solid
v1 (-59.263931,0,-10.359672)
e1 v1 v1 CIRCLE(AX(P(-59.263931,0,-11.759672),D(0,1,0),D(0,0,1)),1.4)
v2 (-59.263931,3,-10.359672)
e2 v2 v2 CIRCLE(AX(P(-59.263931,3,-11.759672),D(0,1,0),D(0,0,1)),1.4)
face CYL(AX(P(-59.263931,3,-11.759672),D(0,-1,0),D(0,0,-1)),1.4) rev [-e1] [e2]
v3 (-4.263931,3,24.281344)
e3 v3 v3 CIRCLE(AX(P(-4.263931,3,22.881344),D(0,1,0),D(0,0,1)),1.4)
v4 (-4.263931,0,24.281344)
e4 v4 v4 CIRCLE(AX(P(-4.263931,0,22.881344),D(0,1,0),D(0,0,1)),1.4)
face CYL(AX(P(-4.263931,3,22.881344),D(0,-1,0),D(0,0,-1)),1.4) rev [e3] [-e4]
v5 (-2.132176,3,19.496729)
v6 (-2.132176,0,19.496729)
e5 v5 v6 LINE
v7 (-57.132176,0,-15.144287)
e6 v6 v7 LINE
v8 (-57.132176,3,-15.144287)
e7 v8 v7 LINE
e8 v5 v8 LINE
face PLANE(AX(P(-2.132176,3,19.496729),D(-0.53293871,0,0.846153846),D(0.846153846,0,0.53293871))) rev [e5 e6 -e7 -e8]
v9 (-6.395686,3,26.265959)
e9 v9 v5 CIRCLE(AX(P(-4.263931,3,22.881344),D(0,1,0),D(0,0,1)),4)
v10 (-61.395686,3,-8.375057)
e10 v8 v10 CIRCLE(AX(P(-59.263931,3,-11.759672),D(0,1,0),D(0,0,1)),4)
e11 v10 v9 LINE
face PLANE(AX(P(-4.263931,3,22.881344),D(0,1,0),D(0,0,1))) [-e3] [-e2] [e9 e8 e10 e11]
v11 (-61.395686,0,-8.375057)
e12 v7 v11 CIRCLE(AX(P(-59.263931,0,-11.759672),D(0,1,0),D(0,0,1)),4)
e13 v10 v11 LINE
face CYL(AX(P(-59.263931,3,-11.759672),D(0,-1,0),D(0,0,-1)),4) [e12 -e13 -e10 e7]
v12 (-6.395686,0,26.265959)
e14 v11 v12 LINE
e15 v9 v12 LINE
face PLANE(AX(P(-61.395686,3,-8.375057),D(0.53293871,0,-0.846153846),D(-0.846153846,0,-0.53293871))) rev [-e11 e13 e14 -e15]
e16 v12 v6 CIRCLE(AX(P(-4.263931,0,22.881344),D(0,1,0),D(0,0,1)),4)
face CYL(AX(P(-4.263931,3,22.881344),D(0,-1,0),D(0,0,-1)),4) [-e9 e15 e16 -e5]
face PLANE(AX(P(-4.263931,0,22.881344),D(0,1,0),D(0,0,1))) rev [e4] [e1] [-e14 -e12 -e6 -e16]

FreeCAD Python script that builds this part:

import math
import FreeCAD as App
import Part
import Sketcher

V = App.Vector
Q = App.Units.Quantity

doc = App.newDocument("Part")
body = doc.addObject("PartDesign::Body", "Body")

# Sketch on XZ plane
sketch1 = body.newObject("Sketcher::SketchObject", "Sketch")
sketch1.AttachmentSupport = (doc.getObject("XZ_Plane"), [""])
sketch1.MapMode = "FlatFace"
sketch1.addGeometry(Part.LineSegment(V(-2.1, 19.5, 0), V(-57.1, -15.1, 0)), False)
sketch1.addGeometry(Part.ArcOfCircle(Part.Circle(V(-59.3, -11.8, 0), V(0, 0, 1), 4), math.radians(122), math.radians(302)), False)
sketch1.addGeometry(Part.LineSegment(V(-61.4, -8.4, 0), V(-6.4, 26.3, 0)), False)
sketch1.addGeometry(Part.ArcOfCircle(Part.Circle(V(-4.3, 22.9, 0), V(0, 0, 1), 4), math.radians(-58), math.radians(122)), False)
sketch1.addGeometry(Part.Circle(V(-4.3, 22.9, 0), V(0, 0, 1), 1.4), False)
sketch1.addGeometry(Part.Circle(V(-59.3, -11.8, 0), V(0, 0, 1), 1.4), False)
sketch1.addConstraint(Sketcher.Constraint("Tangent", 0, 2, 1, 2))
sketch1.addConstraint(Sketcher.Constraint("Tangent", 1, 1, 2, 1))
sketch1.addConstraint(Sketcher.Constraint("Tangent", 2, 2, 3, 2))
sketch1.addConstraint(Sketcher.Constraint("Tangent", 3, 1, 0, 1))
sketch1.addConstraint(Sketcher.Constraint("Coincident", 4, 3, 3, 3))
sketch1.addConstraint(Sketcher.Constraint("Coincident", 5, 3, 1, 3))
sketch1.addConstraint(Sketcher.Constraint("Equal", 1, 3))
sketch1.addConstraint(Sketcher.Constraint("Equal", 4, 5))
sketch1.addConstraint(Sketcher.Constraint("Radius", 1, Q("4 mm")))
sketch1.addConstraint(Sketcher.Constraint("Diameter", 4, Q("2.8 mm")))
sketch1.addConstraint(Sketcher.Constraint("Distance", 0, Q("65 mm")))
sketch1.addConstraint(Sketcher.Constraint("DistanceX", 1, 3, 3, 3, Q("55 mm")))
sketch1.addConstraint(Sketcher.Constraint("DistanceX", 1, 3, -1, 1, Q("59.263931 mm")))
sketch1.addConstraint(Sketcher.Constraint("DistanceY", -1, 1, 2, 2, Q("26.265959 mm")))
pad1 = body.newObject("PartDesign::Pad", "Pad")
pad1.Profile = sketch1
pad1.Length = 3
pad1.Reversed = True

doc.recompute()
